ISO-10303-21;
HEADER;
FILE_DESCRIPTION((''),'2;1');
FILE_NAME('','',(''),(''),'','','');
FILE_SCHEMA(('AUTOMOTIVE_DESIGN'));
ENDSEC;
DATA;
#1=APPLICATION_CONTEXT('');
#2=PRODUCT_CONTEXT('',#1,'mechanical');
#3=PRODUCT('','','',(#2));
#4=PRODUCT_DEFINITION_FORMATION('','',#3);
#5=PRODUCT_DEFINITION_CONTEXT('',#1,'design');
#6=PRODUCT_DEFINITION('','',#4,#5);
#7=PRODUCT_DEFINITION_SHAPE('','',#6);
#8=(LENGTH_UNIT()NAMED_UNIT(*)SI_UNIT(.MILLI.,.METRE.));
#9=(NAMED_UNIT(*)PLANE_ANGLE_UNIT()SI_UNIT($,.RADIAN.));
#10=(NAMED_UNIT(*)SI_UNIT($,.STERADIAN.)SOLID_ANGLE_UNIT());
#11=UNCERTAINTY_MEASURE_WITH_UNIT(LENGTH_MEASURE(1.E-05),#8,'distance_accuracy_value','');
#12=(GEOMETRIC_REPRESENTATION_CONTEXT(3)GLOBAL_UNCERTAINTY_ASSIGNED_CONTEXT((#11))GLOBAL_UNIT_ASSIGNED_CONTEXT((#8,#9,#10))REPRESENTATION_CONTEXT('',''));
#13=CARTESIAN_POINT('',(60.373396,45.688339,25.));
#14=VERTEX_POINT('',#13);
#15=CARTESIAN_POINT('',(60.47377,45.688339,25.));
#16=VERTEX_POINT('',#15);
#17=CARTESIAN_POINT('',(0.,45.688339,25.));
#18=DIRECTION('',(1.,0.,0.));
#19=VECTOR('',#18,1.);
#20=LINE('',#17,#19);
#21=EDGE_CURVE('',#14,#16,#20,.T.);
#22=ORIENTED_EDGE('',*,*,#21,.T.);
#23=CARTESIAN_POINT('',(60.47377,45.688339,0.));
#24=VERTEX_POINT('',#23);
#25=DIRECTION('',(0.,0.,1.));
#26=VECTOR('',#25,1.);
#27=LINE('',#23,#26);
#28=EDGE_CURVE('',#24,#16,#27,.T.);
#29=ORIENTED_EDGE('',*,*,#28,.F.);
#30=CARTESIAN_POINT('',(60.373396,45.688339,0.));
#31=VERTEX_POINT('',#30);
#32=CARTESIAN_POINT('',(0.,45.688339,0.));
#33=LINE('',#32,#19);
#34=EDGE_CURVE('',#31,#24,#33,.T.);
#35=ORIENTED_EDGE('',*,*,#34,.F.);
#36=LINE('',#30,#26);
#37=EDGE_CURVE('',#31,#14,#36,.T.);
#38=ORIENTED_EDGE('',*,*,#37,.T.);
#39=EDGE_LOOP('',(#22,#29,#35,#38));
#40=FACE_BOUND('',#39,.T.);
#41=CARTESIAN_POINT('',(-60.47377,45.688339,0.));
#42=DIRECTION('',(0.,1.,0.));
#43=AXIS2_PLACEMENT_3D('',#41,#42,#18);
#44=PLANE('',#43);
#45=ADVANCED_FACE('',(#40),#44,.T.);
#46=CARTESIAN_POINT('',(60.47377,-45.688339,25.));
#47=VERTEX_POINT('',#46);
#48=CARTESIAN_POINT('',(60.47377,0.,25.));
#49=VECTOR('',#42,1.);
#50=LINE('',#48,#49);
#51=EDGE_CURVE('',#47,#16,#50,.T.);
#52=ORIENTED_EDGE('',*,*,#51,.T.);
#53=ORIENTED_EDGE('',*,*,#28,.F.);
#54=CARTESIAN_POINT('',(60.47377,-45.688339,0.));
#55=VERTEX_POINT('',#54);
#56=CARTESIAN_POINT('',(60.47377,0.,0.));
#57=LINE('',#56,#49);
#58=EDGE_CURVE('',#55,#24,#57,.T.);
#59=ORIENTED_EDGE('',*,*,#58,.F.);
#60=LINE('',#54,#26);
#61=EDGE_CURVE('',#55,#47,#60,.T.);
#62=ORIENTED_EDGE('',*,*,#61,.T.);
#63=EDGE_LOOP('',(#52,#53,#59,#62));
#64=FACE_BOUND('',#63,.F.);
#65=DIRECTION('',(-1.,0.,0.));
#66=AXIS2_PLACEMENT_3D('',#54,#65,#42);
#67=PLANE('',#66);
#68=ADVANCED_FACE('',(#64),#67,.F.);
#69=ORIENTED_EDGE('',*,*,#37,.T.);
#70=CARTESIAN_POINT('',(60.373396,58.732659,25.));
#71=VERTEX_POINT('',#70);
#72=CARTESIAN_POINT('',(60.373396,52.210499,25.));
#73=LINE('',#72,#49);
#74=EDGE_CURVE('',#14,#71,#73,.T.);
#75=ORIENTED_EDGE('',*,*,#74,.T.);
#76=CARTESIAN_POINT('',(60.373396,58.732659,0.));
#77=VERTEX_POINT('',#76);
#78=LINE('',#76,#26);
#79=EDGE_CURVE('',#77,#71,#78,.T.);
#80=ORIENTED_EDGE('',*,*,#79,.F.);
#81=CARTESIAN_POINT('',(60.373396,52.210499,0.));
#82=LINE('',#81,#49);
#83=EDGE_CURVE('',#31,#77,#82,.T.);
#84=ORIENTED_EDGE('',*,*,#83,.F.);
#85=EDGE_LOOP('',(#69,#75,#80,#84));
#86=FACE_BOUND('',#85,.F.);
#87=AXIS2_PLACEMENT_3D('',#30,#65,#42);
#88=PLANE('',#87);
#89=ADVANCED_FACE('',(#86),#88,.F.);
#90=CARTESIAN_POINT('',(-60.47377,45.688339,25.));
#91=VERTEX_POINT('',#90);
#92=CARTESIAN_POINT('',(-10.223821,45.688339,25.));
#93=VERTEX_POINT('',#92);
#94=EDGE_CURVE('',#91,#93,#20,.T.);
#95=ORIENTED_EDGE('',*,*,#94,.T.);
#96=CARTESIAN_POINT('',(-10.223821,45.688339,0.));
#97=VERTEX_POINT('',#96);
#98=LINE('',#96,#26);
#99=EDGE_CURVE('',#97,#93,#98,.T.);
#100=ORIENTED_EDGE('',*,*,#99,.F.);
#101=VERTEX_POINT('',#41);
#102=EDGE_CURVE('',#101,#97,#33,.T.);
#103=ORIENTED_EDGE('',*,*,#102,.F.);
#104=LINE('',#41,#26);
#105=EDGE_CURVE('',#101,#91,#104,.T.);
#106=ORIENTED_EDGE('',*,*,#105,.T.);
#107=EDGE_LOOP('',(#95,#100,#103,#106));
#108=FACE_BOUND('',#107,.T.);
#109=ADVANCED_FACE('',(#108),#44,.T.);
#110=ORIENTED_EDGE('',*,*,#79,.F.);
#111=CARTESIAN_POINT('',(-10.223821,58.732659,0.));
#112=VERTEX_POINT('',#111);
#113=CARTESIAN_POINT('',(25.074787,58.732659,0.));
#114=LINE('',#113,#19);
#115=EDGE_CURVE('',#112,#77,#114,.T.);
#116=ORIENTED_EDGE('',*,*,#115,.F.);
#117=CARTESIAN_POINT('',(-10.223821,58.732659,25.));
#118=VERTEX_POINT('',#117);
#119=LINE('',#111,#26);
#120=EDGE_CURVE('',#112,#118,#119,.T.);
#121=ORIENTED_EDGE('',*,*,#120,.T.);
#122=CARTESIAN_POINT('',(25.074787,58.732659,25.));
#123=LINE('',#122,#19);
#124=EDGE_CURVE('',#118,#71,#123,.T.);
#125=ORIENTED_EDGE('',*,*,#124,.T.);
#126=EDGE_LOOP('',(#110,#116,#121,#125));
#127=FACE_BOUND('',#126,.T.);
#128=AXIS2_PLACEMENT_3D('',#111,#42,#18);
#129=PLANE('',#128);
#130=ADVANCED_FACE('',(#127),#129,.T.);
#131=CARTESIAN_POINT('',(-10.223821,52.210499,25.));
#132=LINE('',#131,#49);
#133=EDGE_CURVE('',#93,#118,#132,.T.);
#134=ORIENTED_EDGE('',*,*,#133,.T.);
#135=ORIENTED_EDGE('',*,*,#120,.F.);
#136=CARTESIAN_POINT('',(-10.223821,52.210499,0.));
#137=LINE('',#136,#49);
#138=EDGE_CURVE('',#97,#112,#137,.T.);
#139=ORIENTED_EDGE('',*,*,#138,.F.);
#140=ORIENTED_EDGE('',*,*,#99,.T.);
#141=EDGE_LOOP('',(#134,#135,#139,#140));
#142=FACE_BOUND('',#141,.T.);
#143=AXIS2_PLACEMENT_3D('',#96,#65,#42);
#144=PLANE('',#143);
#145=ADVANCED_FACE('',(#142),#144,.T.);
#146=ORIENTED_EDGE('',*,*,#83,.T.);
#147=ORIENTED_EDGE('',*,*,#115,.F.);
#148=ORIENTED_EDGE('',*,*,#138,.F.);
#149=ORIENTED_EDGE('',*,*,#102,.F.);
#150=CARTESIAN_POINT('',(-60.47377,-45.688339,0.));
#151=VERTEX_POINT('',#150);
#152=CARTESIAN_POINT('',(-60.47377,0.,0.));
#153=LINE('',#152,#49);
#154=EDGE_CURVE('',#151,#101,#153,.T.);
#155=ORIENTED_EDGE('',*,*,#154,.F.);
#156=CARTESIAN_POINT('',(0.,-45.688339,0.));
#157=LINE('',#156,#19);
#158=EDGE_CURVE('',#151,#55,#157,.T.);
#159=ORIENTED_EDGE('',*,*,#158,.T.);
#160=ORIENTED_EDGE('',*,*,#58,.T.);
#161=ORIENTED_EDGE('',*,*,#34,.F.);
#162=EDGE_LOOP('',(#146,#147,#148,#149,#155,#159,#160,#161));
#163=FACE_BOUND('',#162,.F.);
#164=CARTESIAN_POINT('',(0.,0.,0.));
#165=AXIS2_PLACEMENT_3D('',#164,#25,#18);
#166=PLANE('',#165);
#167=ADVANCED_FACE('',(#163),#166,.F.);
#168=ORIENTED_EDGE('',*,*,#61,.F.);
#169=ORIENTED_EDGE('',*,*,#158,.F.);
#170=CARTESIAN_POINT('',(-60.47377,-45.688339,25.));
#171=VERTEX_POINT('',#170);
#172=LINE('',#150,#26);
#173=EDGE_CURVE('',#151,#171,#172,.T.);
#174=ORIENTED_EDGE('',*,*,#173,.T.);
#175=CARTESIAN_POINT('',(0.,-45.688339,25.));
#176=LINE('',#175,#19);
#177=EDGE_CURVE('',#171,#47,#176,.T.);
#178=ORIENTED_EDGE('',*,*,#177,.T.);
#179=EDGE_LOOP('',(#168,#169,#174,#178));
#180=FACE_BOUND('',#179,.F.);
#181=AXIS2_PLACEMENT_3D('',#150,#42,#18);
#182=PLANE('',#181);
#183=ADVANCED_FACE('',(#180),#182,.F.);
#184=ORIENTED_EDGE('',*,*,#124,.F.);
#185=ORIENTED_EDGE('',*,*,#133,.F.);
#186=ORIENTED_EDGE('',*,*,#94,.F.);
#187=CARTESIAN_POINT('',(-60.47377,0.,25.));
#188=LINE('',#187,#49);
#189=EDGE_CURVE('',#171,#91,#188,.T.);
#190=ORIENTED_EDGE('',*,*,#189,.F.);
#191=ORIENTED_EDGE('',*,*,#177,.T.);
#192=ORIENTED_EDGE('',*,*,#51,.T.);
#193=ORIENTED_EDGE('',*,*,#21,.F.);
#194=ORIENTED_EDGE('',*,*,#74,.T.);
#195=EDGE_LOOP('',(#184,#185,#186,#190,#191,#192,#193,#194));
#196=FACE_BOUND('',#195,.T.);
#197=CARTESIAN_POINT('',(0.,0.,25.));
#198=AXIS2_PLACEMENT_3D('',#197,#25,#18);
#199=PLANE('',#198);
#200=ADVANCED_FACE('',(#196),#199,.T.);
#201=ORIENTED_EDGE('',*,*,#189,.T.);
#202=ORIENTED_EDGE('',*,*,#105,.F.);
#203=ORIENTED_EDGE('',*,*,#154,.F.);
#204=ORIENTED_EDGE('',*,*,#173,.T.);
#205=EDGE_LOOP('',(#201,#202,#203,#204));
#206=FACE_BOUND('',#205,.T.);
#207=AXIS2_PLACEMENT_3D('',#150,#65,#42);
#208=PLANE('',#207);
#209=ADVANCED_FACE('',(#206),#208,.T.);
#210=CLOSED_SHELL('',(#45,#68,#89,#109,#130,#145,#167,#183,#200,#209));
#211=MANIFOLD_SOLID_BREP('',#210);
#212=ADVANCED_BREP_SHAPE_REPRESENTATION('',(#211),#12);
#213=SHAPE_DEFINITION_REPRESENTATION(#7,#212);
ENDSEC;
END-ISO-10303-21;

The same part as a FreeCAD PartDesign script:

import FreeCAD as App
import Part
import Sketcher

V = App.Vector


def add_polygon(sketch, points):
    """Adds a closed chain of lines whose ends are joined by coincident constraints."""
    first, n = sketch.GeometryCount, len(points)
    for a, b in zip(points, points[1:] + points[:1]):
        sketch.addGeometry(Part.LineSegment(App.Vector(*a, 0), App.Vector(*b, 0)), False)
    for i in range(n):
        sketch.addConstraint(Sketcher.Constraint("Coincident", first + i, 2, first + (i + 1) % n, 1))

doc = App.newDocument("Part")
body = doc.addObject("PartDesign::Body", "Body")

sketch1 = body.newObject("Sketcher::SketchObject", "Sketch")
sketch1.AttachmentSupport = (doc.getObject("XY_Plane"), [""])
sketch1.MapMode = "FlatFace"
add_polygon(sketch1, [(-10, 59), (-10, 46), (60, 46), (60, 59)])
sketch1.addConstraint(Sketcher.Constraint("Vertical", 0))
sketch1.addConstraint(Sketcher.Constraint("Horizontal", 1))
sketch1.addConstraint(Sketcher.Constraint("Vertical", 2))
sketch1.addConstraint(Sketcher.Constraint("Horizontal", 3))
sketch1.addConstraint(Sketcher.Constraint("DistanceY", 0, 2, 0, 1, 13.04432))
sketch1.addConstraint(Sketcher.Constraint("DistanceX", 1, 1, 1, 2, 70.597217))
sketch1.addConstraint(Sketcher.Constraint("DistanceX", 0, 2, -1, 1, 10.223821))
sketch1.addConstraint(Sketcher.Constraint("DistanceY", -1, 1, 0, 2, 45.688339))
pad1 = body.newObject("PartDesign::Pad", "Pad")
pad1.Profile = sketch1
pad1.Length = 25

sketch2 = body.newObject("Sketcher::SketchObject", "Sketch001")
sketch2.AttachmentSupport = (doc.getObject("XY_Plane"), [""])
sketch2.MapMode = "FlatFace"
add_polygon(sketch2, [(-60, 46), (-60, -46), (60, -46), (60, 46)])
sketch2.addConstraint(Sketcher.Constraint("Vertical", 0))
sketch2.addConstraint(Sketcher.Constraint("Horizontal", 1))
sketch2.addConstraint(Sketcher.Constraint("Vertical", 2))
sketch2.addConstraint(Sketcher.Constraint("Horizontal", 3))
sketch2.addConstraint(Sketcher.Constraint("Symmetric", 0, 2, 2, 2, -1, 1))
sketch2.addConstraint(Sketcher.Constraint("DistanceX", 1, 1, 1, 2, 120.94754))
sketch2.addConstraint(Sketcher.Constraint("DistanceY", 0, 2, 0, 1, 91.376678))
pad2 = body.newObject("PartDesign::Pad", "Pad001")
pad2.Profile = sketch2
pad2.Length = 25

doc.recompute()
